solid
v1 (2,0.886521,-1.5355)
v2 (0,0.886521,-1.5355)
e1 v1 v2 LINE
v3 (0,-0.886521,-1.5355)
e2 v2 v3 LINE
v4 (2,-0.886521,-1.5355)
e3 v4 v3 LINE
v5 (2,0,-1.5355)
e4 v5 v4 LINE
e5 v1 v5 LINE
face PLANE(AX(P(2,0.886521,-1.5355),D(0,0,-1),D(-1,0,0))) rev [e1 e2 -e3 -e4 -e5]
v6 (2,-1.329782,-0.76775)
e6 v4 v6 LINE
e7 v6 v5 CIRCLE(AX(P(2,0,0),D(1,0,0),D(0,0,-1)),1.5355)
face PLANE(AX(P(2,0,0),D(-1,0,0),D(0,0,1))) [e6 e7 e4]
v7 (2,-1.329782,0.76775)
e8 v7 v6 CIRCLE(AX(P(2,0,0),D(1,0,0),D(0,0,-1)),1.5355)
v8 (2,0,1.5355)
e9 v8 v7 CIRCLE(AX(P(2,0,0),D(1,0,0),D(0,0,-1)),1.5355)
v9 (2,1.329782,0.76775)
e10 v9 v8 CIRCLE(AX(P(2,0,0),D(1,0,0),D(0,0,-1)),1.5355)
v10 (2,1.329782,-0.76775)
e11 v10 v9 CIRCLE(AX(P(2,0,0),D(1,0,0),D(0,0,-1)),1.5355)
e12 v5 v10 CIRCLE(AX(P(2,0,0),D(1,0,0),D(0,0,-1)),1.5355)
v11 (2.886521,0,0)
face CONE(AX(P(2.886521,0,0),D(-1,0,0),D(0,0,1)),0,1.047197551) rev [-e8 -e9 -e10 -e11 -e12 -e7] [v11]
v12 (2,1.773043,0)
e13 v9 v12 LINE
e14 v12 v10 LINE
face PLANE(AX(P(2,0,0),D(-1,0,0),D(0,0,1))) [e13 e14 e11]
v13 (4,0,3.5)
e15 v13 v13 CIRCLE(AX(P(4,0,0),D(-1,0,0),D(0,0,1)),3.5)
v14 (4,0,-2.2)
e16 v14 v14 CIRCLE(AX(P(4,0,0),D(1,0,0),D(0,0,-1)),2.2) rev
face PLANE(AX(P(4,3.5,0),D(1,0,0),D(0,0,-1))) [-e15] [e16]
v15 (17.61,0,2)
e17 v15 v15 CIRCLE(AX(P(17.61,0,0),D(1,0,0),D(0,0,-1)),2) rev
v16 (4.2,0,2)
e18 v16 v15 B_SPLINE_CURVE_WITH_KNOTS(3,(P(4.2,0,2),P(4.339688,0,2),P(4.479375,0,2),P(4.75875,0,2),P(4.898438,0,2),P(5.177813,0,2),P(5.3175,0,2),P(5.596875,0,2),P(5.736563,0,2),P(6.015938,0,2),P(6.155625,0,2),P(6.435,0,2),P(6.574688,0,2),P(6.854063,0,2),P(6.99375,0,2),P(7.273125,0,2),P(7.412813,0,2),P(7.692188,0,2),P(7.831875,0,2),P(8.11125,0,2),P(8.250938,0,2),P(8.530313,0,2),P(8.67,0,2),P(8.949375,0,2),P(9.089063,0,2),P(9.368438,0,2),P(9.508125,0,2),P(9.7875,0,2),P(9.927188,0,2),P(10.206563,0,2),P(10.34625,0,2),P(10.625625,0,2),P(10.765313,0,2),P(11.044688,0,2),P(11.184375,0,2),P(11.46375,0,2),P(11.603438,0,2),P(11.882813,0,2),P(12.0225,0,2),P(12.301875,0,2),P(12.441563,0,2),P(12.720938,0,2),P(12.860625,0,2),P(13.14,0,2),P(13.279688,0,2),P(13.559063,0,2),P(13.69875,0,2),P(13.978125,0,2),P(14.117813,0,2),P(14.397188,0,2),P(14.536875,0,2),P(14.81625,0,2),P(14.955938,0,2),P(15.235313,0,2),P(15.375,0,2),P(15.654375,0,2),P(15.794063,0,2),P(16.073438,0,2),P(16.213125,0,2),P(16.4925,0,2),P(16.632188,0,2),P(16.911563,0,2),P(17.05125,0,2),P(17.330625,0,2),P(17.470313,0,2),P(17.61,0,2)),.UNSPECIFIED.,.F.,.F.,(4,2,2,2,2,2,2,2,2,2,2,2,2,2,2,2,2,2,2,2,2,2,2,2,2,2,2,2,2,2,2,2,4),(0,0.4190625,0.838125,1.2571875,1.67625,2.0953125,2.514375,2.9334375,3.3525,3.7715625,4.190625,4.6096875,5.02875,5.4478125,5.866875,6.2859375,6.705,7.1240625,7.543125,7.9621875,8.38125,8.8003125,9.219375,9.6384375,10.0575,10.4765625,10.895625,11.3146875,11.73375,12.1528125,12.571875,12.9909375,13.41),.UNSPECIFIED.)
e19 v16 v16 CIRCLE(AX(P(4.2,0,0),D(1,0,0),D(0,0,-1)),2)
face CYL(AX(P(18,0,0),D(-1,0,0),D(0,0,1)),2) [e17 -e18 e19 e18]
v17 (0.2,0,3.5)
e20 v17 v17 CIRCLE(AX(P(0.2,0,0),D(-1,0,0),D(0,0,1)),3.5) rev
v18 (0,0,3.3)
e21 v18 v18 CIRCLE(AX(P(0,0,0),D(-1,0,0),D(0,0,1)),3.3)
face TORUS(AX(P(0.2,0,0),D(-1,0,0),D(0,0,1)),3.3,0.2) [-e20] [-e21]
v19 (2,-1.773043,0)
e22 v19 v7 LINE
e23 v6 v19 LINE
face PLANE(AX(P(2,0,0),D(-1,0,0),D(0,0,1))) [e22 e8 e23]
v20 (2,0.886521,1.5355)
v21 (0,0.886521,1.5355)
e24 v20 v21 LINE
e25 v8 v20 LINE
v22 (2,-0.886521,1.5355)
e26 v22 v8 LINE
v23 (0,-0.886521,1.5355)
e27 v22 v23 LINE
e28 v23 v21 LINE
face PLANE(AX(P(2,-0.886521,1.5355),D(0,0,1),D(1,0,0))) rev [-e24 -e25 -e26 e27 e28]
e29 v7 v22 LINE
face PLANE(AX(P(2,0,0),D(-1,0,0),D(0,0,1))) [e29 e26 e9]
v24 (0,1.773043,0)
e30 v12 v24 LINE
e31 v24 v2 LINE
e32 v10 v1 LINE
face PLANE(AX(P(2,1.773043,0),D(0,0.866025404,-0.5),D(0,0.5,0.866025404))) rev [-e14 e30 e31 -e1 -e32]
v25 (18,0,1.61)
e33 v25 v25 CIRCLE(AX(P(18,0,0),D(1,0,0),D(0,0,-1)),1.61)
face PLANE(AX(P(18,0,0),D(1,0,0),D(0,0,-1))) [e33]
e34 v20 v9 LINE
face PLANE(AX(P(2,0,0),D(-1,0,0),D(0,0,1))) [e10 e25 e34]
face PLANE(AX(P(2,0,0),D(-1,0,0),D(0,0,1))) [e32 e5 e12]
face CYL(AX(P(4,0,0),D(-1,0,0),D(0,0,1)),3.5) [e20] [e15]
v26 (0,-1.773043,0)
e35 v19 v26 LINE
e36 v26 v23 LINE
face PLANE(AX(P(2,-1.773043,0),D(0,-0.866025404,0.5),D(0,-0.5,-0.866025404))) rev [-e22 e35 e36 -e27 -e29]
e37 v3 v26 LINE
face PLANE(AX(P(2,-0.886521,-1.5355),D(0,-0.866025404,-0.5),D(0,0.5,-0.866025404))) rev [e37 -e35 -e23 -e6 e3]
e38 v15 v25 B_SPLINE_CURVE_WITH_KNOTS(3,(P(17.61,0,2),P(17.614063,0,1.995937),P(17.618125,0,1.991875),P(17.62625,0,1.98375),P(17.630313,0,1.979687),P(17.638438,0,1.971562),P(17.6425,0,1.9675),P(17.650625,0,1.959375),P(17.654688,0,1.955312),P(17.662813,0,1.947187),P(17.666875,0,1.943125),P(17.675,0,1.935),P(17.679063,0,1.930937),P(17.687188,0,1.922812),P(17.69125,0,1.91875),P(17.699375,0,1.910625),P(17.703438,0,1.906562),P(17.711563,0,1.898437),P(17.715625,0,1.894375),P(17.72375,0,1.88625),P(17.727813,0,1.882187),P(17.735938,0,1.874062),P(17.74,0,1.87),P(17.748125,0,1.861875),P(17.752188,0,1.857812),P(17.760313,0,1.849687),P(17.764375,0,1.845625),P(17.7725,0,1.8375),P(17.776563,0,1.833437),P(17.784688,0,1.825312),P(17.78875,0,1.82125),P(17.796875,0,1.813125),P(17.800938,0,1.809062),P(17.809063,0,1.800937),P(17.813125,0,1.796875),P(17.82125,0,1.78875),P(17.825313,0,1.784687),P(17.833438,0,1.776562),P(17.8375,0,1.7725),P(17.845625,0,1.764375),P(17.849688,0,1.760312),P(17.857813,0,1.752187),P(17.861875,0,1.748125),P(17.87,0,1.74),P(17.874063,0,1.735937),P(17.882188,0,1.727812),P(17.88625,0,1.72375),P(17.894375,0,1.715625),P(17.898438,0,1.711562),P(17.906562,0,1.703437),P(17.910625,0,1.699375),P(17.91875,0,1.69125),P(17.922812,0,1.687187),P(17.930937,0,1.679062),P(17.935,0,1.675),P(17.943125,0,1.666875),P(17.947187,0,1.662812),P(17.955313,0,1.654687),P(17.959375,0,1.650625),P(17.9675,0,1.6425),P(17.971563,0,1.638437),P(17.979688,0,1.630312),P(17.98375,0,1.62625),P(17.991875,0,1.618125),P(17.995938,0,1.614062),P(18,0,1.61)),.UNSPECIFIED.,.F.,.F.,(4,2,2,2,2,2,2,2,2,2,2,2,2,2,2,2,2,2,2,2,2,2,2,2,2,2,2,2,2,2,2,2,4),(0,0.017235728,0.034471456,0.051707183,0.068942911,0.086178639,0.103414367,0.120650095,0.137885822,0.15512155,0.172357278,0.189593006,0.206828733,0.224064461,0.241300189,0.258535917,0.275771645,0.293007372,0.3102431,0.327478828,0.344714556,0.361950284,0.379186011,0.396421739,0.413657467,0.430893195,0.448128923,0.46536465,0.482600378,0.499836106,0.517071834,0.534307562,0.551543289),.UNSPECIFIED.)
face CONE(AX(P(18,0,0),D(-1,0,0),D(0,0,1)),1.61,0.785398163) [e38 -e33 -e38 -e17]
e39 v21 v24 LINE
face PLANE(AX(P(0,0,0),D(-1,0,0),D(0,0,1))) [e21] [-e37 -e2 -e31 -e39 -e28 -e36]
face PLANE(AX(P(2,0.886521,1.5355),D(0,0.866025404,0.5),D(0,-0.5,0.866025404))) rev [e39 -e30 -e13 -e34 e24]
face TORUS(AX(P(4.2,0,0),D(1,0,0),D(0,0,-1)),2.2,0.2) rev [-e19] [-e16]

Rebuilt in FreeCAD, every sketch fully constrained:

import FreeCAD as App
import Part
import Sketcher
from FreeCAD import Vector
Q = App.Units.Quantity


def edges_at(feature, points):
    """Names of the edges that pass closest to the given points."""
    edges = feature.Shape.Edges
    near = lambda p: min(range(len(edges)), key=lambda i: edges[i].distToShape(Part.Vertex(*p))[0])
    return sorted({f"Edge{near(p) + 1}" for p in points})


def add_polygon(sketch, points):
    """Adds a closed chain of lines whose ends are joined by coincident constraints."""
    first, n = sketch.GeometryCount, len(points)
    for a, b in zip(points, points[1:] + points[:1]):
        sketch.addGeometry(Part.LineSegment(App.Vector(*a, 0), App.Vector(*b, 0)), False)
    for i in range(n):
        sketch.addConstraint(Sketcher.Constraint("Coincident", first + i, 2, first + (i + 1) % n, 1))

doc = App.newDocument("Part")
params = doc.addObject("Spreadsheet::Sheet", "Params")
for row, (alias, value) in enumerate([
    ("sketch1_width", "4 mm"),
    ("sketch1_height", "3.5 mm"),
    ("revolution_angle", "360 deg"),
    ("sketch2_diameter", "4 mm"),
    ("pad1_length", "14 mm"),
    ("pocket1_length", "2 mm"),
    ("groove_angle", "360 deg"),
    ("chamfer_size", "0.39 mm"),
    ("fillet_radius", "0.2 mm"),
], start=1):
    params.set(f"A{row}", alias)
    params.set(f"B{row}", "=" + value)
    params.setAlias(f"B{row}", alias)

body = doc.addObject("PartDesign::Body", "Body")

sketch1 = doc.addObject("Sketcher::SketchObject", "Sketch")
body.addObject(sketch1)
sketch1.AttachmentSupport = (doc.XY_Plane, [""])
sketch1.MapMode = "FlatFace"
add_polygon(sketch1, [(4, 3.5), (4, 0), (0, 0), (0, 3.5)])
sketch1.addConstraint([
    Sketcher.Constraint("Vertical", 0),
    Sketcher.Constraint("Horizontal", 1),
    Sketcher.Constraint("Vertical", 2),
    Sketcher.Constraint("Horizontal", 3),
    Sketcher.Constraint("Coincident", 1, 2, -1, 1),
    Sketcher.Constraint("DistanceX", 1, 2, 1, 1, Q("4 mm")),
    Sketcher.Constraint("DistanceY", 0, 2, 0, 1, Q("3.5 mm")),
])
sketch1.setExpression("Constraints[9]", "Params.sketch1_width")
sketch1.setExpression("Constraints[10]", "Params.sketch1_height")
revolution = doc.addObject("PartDesign::Revolution", "Revolution")
body.addObject(revolution)
revolution.Profile = sketch1
revolution.ReferenceAxis = (sketch1, ["H_Axis"])
revolution.setExpression("Angle", "Params.revolution_angle")

sketch2 = doc.addObject("Sketcher::SketchObject", "Sketch001")
body.addObject(sketch2)
sketch2.AttachmentSupport = (doc.YZ_Plane, [""])
sketch2.MapMode = "FlatFace"
sketch2.AttachmentOffset = App.Placement(Vector(0, 0, 4), App.Rotation())
sketch2.addGeometry(Part.Circle(Vector(0, 0, 0), Vector(0, 0, 1), 2), False)
sketch2.addConstraint([
    Sketcher.Constraint("Coincident", 0, 3, -1, 1),
    Sketcher.Constraint("Diameter", 0, Q("4 mm")),
])
sketch2.setExpression("Constraints[1]", "Params.sketch2_diameter")
pad1 = doc.addObject("PartDesign::Pad", "Pad")
body.addObject(pad1)
pad1.Profile = sketch2
pad1.setExpression("Length", "Params.pad1_length")

sketch3 = doc.addObject("Sketcher::SketchObject", "Sketch002")
body.addObject(sketch3)
sketch3.AttachmentSupport = (doc.YZ_Plane, [""])
sketch3.MapMode = "FlatFace"
add_polygon(sketch3, [(-1.773043, 0), (-0.886521, 1.5355), (0.886521, 1.5355), (1.773043, 0), (0.886521, -1.5355), (-0.886521, -1.5355)])
sketch3.addConstraint([
    Sketcher.Constraint("Horizontal", 1),
    Sketcher.Constraint("Horizontal", 4),
    Sketcher.Constraint("Symmetric", 0, 2, 3, 2, -1, 1),
    Sketcher.Constraint("Symmetric", 2, 2, 5, 2, -1, 1),
    Sketcher.Constraint("PointOnObject", 2, 2, -1),
    Sketcher.Constraint("Parallel", 2, 5),
    Sketcher.Constraint("Vertical", 1, 2, 3, 2),
    Sketcher.Constraint("Angle", 0, Q("60 deg")),
    Sketcher.Constraint("DistanceY", 3, 2, 1, 2, Q("3.071 mm")),
    Sketcher.Constraint("DistanceX", 1, 1, 1, 2, Q("1.773043 mm")),
])
pocket1 = doc.addObject("PartDesign::Pocket", "Pocket")
body.addObject(pocket1)
pocket1.Profile = sketch3
pocket1.setExpression("Length", "Params.pocket1_length")
pocket1.Reversed = True

sketch4 = doc.addObject("Sketcher::SketchObject", "Sketch003")
body.addObject(sketch4)
sketch4.AttachmentSupport = (doc.XY_Plane, [""])
sketch4.MapMode = "FlatFace"
add_polygon(sketch4, [(2, 1.5355), (2, 0), (2.886521, 0)])
sketch4.addConstraint([
    Sketcher.Constraint("Vertical", 0),
    Sketcher.Constraint("Horizontal", 1),
    Sketcher.Constraint("PointOnObject", 0, 2, -1),
    Sketcher.Constraint("Angle", 2, Q("120 deg")),
    Sketcher.Constraint("DistanceX", -1, 1, 0, 2, Q("2 mm")),
    Sketcher.Constraint("DistanceY", 0, 2, 0, 1, Q("1.5355 mm")),
])
groove = doc.addObject("PartDesign::Groove", "Groove")
body.addObject(groove)
groove.Profile = sketch4
groove.ReferenceAxis = (sketch4, ["H_Axis"])
groove.setExpression("Angle", "Params.groove_angle")
doc.recompute()

chamfer = doc.addObject("PartDesign::Chamfer", "Chamfer")
body.addObject(chamfer)
chamfer.Base = (groove, edges_at(groove, [(18, 0, -2)]))
chamfer.setExpression("Size", "Params.chamfer_size")
doc.recompute()

fillet = doc.addObject("PartDesign::Fillet", "Fillet")
body.addObject(fillet)
fillet.Base = (chamfer, edges_at(chamfer, [(0, 0, -3.5), (4, 0, -2)]))
fillet.setExpression("Radius", "Params.fillet_radius")

doc.recompute()
